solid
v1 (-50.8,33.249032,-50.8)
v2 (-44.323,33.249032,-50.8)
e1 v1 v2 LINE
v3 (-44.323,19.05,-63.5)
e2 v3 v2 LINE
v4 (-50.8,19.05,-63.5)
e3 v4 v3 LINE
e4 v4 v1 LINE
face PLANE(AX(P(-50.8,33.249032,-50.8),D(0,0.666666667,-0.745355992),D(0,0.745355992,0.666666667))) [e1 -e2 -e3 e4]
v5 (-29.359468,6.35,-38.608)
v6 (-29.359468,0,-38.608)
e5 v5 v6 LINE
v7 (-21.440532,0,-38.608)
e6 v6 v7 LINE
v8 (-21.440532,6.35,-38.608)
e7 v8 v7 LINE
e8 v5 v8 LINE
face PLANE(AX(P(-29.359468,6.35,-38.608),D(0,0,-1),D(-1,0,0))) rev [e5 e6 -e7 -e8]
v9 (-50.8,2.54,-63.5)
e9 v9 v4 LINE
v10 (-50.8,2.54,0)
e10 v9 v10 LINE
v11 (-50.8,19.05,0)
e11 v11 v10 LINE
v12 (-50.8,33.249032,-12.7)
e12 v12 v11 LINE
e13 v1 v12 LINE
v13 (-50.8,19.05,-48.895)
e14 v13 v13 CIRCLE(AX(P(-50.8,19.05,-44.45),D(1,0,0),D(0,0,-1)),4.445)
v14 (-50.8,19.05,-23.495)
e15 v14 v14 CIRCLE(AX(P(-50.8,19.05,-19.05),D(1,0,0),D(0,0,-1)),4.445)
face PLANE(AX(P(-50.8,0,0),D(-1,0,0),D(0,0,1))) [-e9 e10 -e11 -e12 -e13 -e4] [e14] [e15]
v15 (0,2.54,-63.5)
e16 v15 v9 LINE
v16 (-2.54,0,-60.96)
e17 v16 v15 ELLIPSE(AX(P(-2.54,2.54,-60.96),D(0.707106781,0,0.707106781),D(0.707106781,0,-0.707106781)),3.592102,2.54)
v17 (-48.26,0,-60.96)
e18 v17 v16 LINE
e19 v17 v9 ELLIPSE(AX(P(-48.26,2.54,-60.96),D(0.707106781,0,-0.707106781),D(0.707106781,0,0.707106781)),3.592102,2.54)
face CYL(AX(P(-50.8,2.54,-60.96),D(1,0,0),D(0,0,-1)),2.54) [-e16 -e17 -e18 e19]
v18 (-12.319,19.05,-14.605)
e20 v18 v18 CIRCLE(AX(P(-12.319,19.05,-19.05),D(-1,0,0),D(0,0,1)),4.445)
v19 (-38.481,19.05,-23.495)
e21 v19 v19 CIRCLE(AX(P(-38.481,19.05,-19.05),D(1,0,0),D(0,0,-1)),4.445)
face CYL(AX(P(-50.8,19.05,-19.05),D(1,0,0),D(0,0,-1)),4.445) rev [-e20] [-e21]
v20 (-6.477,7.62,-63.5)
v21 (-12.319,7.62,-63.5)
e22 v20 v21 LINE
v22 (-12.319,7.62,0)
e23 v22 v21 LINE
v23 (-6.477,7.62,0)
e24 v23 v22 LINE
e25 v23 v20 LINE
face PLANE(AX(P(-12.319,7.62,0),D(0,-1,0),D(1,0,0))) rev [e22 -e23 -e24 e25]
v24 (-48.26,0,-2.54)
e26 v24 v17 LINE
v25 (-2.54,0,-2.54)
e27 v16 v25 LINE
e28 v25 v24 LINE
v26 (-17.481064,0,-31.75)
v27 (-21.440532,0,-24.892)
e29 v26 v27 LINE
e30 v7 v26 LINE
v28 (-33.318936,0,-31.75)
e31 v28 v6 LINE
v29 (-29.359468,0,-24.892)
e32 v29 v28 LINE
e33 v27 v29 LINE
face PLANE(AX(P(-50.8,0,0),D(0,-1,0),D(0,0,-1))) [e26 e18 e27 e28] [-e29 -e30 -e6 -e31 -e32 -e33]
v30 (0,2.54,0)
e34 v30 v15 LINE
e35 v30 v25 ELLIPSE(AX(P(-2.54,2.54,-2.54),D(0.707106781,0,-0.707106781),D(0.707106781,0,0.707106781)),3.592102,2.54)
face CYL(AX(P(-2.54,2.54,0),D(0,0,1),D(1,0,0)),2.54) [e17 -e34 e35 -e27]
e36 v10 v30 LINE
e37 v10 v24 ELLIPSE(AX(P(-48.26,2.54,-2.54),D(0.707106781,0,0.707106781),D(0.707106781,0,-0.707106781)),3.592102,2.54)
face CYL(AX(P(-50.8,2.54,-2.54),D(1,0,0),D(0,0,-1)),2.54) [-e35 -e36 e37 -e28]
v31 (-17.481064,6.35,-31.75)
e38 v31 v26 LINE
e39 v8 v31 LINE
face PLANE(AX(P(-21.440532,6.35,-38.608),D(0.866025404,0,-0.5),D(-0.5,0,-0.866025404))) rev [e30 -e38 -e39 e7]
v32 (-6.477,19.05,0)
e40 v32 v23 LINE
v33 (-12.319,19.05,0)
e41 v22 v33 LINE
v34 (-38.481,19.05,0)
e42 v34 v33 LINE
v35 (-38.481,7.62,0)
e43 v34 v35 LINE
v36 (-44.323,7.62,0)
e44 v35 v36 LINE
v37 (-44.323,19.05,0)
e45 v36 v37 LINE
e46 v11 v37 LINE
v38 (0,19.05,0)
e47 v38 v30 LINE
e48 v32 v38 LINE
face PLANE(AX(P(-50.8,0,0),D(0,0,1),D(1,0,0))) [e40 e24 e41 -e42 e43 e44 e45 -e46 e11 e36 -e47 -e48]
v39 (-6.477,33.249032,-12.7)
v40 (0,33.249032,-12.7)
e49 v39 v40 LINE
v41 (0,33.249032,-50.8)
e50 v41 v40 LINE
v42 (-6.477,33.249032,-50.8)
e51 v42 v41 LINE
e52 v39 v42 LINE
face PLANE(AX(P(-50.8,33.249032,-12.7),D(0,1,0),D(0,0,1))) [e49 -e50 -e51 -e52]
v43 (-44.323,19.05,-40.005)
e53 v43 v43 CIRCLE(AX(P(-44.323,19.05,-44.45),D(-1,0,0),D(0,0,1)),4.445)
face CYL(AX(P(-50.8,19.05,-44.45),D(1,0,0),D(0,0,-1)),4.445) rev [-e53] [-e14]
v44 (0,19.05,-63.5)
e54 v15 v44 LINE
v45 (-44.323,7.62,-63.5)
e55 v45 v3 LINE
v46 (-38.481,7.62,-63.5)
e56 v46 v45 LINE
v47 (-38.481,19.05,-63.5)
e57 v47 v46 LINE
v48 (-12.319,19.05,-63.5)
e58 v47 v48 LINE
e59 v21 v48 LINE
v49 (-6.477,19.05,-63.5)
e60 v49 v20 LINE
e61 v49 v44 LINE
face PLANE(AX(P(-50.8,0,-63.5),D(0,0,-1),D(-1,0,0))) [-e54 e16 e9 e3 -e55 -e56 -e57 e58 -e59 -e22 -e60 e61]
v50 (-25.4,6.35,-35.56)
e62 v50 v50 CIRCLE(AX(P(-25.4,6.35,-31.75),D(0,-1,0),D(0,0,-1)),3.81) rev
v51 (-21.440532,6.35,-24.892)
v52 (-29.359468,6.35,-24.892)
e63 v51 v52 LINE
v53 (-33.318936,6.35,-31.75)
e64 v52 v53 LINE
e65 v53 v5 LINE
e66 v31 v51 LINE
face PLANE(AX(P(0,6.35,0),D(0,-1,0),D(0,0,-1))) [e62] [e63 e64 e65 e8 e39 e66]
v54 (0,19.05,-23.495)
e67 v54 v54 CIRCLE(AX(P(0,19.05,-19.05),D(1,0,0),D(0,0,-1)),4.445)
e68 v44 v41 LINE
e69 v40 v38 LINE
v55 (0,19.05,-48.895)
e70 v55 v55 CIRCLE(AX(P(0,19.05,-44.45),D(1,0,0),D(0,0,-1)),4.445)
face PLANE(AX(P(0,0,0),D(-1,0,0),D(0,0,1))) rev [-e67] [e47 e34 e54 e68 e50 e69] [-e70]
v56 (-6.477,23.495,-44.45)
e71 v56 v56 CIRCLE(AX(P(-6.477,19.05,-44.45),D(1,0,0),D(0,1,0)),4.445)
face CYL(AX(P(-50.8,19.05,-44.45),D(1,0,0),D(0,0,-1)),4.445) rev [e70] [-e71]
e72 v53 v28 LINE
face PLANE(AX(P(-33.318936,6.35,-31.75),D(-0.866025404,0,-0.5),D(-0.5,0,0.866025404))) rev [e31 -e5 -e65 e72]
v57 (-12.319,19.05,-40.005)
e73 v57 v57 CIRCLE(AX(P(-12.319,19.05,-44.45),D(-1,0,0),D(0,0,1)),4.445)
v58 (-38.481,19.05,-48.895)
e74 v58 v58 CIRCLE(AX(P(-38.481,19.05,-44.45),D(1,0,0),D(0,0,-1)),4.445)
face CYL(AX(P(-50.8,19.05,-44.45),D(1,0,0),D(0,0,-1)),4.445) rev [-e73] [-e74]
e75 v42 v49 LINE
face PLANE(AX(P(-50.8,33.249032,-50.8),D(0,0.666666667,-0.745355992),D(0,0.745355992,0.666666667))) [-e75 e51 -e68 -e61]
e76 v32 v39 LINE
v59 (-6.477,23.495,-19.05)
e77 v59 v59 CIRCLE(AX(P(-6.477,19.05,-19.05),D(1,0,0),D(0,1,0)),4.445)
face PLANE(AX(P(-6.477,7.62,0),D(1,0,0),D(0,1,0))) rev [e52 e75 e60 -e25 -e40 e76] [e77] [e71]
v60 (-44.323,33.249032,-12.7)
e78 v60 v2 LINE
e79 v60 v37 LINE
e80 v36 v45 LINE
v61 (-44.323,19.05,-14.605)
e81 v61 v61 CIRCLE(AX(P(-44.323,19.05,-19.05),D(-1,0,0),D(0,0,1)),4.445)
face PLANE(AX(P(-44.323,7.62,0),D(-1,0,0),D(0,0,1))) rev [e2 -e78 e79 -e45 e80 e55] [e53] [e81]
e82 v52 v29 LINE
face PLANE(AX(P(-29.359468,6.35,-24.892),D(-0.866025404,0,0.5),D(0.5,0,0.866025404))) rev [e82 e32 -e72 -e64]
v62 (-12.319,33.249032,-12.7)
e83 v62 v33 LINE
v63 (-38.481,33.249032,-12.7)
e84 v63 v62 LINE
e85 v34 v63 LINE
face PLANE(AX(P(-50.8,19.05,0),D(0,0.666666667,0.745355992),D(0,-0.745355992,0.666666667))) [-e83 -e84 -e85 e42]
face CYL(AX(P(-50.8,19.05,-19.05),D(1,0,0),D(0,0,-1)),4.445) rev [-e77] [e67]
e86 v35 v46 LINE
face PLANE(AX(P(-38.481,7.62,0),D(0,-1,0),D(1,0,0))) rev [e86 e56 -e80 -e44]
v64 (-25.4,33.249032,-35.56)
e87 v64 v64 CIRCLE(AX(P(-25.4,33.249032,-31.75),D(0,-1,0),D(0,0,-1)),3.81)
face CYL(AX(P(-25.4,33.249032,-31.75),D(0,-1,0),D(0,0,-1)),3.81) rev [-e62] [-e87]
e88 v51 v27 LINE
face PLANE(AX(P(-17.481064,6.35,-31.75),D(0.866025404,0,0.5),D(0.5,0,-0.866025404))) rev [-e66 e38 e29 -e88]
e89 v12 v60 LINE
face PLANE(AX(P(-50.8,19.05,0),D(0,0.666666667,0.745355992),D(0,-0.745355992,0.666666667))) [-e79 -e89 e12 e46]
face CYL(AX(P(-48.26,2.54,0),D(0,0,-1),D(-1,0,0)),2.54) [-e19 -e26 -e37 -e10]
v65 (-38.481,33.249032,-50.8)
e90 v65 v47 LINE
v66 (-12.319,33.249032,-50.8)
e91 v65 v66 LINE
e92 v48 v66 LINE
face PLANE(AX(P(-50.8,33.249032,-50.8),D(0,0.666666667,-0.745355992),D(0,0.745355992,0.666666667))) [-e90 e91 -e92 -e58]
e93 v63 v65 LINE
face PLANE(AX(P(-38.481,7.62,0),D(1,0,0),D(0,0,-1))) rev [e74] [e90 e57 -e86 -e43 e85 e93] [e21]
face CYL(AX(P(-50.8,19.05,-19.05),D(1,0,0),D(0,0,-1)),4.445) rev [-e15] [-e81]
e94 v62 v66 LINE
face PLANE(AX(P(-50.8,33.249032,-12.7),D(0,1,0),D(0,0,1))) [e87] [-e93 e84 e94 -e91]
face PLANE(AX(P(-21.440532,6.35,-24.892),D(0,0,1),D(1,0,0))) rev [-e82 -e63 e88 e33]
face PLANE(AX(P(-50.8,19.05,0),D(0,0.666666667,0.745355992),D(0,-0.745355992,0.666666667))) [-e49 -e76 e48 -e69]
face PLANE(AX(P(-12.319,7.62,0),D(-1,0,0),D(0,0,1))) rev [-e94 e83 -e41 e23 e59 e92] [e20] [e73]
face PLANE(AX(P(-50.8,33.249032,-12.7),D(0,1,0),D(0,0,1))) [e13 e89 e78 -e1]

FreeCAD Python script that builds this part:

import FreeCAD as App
import Part
import Sketcher
from FreeCAD import Vector
Q = App.Units.Quantity


def edges_at(feature, points):
    """Names of the edges that pass closest to the given points."""
    edges = feature.Shape.Edges
    near = lambda p: min(range(len(edges)), key=lambda i: edges[i].distToShape(Part.Vertex(*p))[0])
    return sorted({f"Edge{near(p) + 1}" for p in points})


def add_polygon(sketch, points):
    """Adds a closed chain of lines whose ends are joined by coincident constraints."""
    first, n = sketch.GeometryCount, len(points)
    for a, b in zip(points, points[1:] + points[:1]):
        sketch.addGeometry(Part.LineSegment(App.Vector(*a, 0), App.Vector(*b, 0)), False)
    for i in range(n):
        sketch.addConstraint(Sketcher.Constraint("Coincident", first + i, 2, first + (i + 1) % n, 1))

doc = App.newDocument("Part")
params = doc.addObject("Spreadsheet::Sheet", "Params")
for row, (alias, value) in enumerate([
    ("sketch1_height", "2.5 in"),
    ("sketch1_width", "0.25 in"),
    ("pad1_length", "2 in"),
    ("sketch2_width", "0.5 in"),
    ("sketch2_height", "2.5 in"),
    ("sketch2_height2", "1.5 in"),
    ("sketch2_length", "0.75 in"),
    ("pad2_length", "2 in"),
    ("sketch3_width", "0.23 in"),
    ("sketch4_diameter", "0.35 in"),
    ("fillet_radius", "0.1 in"),
    ("sketch5_diameter", "0.3 in"),
    ("pocket4_length", "0.25 in"),
], start=1):
    params.set(f"A{row}", alias)
    params.set(f"B{row}", "=" + value)
    params.setAlias(f"B{row}", alias)

body = doc.addObject("PartDesign::Body", "Body")

sketch1 = doc.addObject("Sketcher::SketchObject", "Sketch")
body.addObject(sketch1)
sketch1.AttachmentSupport = (doc.YZ_Plane, [""])
sketch1.MapMode = "FlatFace"
add_polygon(sketch1, [(6, 0), (0, 0), (0, -64), (6, -64)])
sketch1.addConstraint([
    Sketcher.Constraint("Horizontal", 0),
    Sketcher.Constraint("Vertical", 1),
    Sketcher.Constraint("Horizontal", 2),
    Sketcher.Constraint("Vertical", 3),
    Sketcher.Constraint("Coincident", 0, 2, -1, 1),
    Sketcher.Constraint("DistanceY", 1, 2, 1, 1, Q("2.5 in")),
    Sketcher.Constraint("DistanceX", 0, 2, 0, 1, Q("0.25 in")),
])
sketch1.setExpression("Constraints[9]", "Params.sketch1_height")
sketch1.setExpression("Constraints[10]", "Params.sketch1_width")
pad1 = doc.addObject("PartDesign::Pad", "Pad")
body.addObject(pad1)
pad1.Profile = sketch1
pad1.setExpression("Length", "Params.pad1_length")
pad1.Reversed = True

sketch2 = doc.addObject("Sketcher::SketchObject", "Sketch001")
body.addObject(sketch2)
sketch2.AttachmentSupport = (doc.YZ_Plane, [""])
sketch2.MapMode = "FlatFace"
add_polygon(sketch2, [(19, 0), (6, 0), (6, -64), (19, -64), (33, -51), (33, -13)])
sketch2.addConstraint([
    Sketcher.Constraint("Horizontal", 0),
    Sketcher.Constraint("Vertical", 1),
    Sketcher.Constraint("Horizontal", 2),
    Sketcher.Constraint("Vertical", 4),
    Sketcher.Constraint("PointOnObject", 0, 2, -1),
    Sketcher.Constraint("Vertical", 2, 2, 5, 2),
    Sketcher.Constraint("Equal", 3, 5),
    Sketcher.Constraint("DistanceX", 0, 2, 0, 1, Q("0.5 in")),
    Sketcher.Constraint("DistanceY", 1, 2, 1, 1, Q("2.5 in")),
    Sketcher.Constraint("DistanceY", 4, 1, 4, 2, Q("1.5 in")),
    Sketcher.Constraint("Distance", 3, Q("0.75 in")),
    Sketcher.Constraint("DistanceX", -1, 1, 0, 2, Q("0.25 in")),
])
sketch2.setExpression("Constraints[13]", "Params.sketch2_width")
sketch2.setExpression("Constraints[14]", "Params.sketch2_height")
sketch2.setExpression("Constraints[15]", "Params.sketch2_height2")
sketch2.setExpression("Constraints[16]", "Params.sketch2_length")
pad2 = doc.addObject("PartDesign::Pad", "Pad001")
body.addObject(pad2)
pad2.Profile = sketch2
pad2.setExpression("Length", "Params.pad2_length")
pad2.Reversed = True

sketch3 = doc.addObject("Sketcher::SketchObject", "Sketch002")
body.addObject(sketch3)
sketch3.AttachmentSupport = (doc.XY_Plane, [""])
sketch3.MapMode = "FlatFace"
sketch3.AttachmentOffset = App.Placement(Vector(0, 0, -2.5 * 25.4), App.Rotation())
add_polygon(sketch3, [(-6, 33), (-6, 8), (-12, 8), (-12, 33)])
add_polygon(sketch3, [(-38, 33), (-38, 8), (-44, 8), (-44, 33)])
sketch3.addConstraint([
    Sketcher.Constraint("Vertical", 0),
    Sketcher.Constraint("Horizontal", 1),
    Sketcher.Constraint("Vertical", 2),
    Sketcher.Constraint("Horizontal", 3),
    Sketcher.Constraint("Vertical", 4),
    Sketcher.Constraint("Horizontal", 5),
    Sketcher.Constraint("Vertical", 6),
    Sketcher.Constraint("Horizontal", 7),
    Sketcher.Constraint("Horizontal", 1, 2, 4, 2),
    Sketcher.Constraint("Horizontal", 3, 2, 6, 2),
    Sketcher.Constraint("Equal", 3, 5),
    Sketcher.Constraint("DistanceX", 1, 2, 1, 1, Q("0.23 in")),
    Sketcher.Constraint("DistanceY", -1, 1, 0, 2, Q("0.3 in")),
    Sketcher.Constraint("DistanceX", 4, 2, 1, 2, Q("1.03 in")),
    Sketcher.Constraint("DistanceX", 0, 2, -1, 1, Q("0.255 in")),
    Sketcher.Constraint("DistanceY", 0, 2, 0, 1, 25.629032),
])
sketch3.setExpression("Constraints[19]", "Params.sketch3_width")
pocket1 = doc.addObject("PartDesign::Pocket", "Pocket")
body.addObject(pocket1)
pocket1.Profile = sketch3
pocket1.Type = "ThroughAll"
pocket1.Reversed = True

sketch4 = doc.addObject("Sketcher::SketchObject", "Sketch003")
body.addObject(sketch4)
sketch4.AttachmentSupport = (doc.YZ_Plane, [""])
sketch4.MapMode = "FlatFace"
sketch4.addGeometry([
    Part.Circle(Vector(19.1, -19.1, 0), Vector(0, 0, 1), 4.4),
    Part.Circle(Vector(19.1, -44.5, 0), Vector(0, 0, 1), 4.4),
], False)
sketch4.addConstraint([
    Sketcher.Constraint("Equal", 0, 1),
    Sketcher.Constraint("Vertical", 0, 3, 1, 3),
    Sketcher.Constraint("Diameter", 0, Q("0.35 in")),
    Sketcher.Constraint("DistanceY", 1, 3, 0, 3, Q("1 in")),
    Sketcher.Constraint("DistanceX", -1, 1, 0, 3, Q("0.75 in")),
    Sketcher.Constraint("DistanceY", 0, 3, -1, 1, Q("0.75 in")),
])
sketch4.setExpression("Constraints[2]", "Params.sketch4_diameter")
pocket2 = doc.addObject("PartDesign::Pocket", "Pocket001")
body.addObject(pocket2)
pocket2.Profile = sketch4
pocket2.Type = "ThroughAll"
doc.recompute()

fillet = doc.addObject("PartDesign::Fillet", "Fillet")
body.addObject(fillet)
fillet.Base = (pocket2, edges_at(pocket2, [
    (0, 0, -31.75),
    (-50.8, 0, -31.75),
    (-25.4, 0, -63.5),
    (-25.4, 0, 0),
]))
fillet.setExpression("Radius", "Params.fillet_radius")

sketch5 = doc.addObject("Sketcher::SketchObject", "Sketch004")
body.addObject(sketch5)
sketch5.AttachmentSupport = (doc.XZ_Plane, [""])
sketch5.MapMode = "FlatFace"
sketch5.addGeometry(Part.Circle(Vector(-25.4, -31.8, 0), Vector(0, 0, 1), 3.8), False)
sketch5.addConstraint([
    Sketcher.Constraint("Diameter", 0, Q("0.3 in")),
    Sketcher.Constraint("DistanceX", 0, 3, -1, 1, Q("1 in")),
    Sketcher.Constraint("DistanceY", 0, 3, -1, 1, Q("1.25 in")),
])
sketch5.setExpression("Constraints[0]", "Params.sketch5_diameter")
pocket3 = doc.addObject("PartDesign::Pocket", "Pocket002")
body.addObject(pocket3)
pocket3.Profile = sketch5
pocket3.Type = "ThroughAll"

sketch6 = doc.addObject("Sketcher::SketchObject", "Sketch005")
body.addObject(sketch6)
sketch6.AttachmentSupport = (doc.XZ_Plane, [""])
sketch6.MapMode = "FlatFace"
add_polygon(sketch6, [(-29, -25), (-33, -32), (-29, -39), (-21, -39), (-17, -32), (-21, -25)])
sketch6.addConstraint([
    Sketcher.Constraint("Horizontal", 2),
    Sketcher.Constraint("Horizontal", 5),
    Sketcher.Constraint("Parallel", 0, 3),
    Sketcher.Constraint("Parallel", 1, 4),
    Sketcher.Constraint("Horizontal", 0, 2, 3, 2),
    Sketcher.Constraint("Vertical", 2, 2, 4, 2),
    Sketcher.Constraint("Vertical", 1, 2, 5, 2),
    Sketcher.Constraint("Angle", 0, Q("-120 deg")),
    Sketcher.Constraint("DistanceY", 0, 2, -1, 1, Q("1.25 in")),
    Sketcher.Constraint("DistanceY", 1, 2, -1, 1, Q("1.52 in")),
    Sketcher.Constraint("DistanceX", 2, 1, 2, 2, 7.918936),
    Sketcher.Constraint("DistanceX", 1, 2, -1, 1, 29.359468),
])
pocket4 = doc.addObject("PartDesign::Pocket", "Pocket003")
body.addObject(pocket4)
pocket4.Profile = sketch6
pocket4.setExpression("Length", "Params.pocket4_length")

doc.recompute()
